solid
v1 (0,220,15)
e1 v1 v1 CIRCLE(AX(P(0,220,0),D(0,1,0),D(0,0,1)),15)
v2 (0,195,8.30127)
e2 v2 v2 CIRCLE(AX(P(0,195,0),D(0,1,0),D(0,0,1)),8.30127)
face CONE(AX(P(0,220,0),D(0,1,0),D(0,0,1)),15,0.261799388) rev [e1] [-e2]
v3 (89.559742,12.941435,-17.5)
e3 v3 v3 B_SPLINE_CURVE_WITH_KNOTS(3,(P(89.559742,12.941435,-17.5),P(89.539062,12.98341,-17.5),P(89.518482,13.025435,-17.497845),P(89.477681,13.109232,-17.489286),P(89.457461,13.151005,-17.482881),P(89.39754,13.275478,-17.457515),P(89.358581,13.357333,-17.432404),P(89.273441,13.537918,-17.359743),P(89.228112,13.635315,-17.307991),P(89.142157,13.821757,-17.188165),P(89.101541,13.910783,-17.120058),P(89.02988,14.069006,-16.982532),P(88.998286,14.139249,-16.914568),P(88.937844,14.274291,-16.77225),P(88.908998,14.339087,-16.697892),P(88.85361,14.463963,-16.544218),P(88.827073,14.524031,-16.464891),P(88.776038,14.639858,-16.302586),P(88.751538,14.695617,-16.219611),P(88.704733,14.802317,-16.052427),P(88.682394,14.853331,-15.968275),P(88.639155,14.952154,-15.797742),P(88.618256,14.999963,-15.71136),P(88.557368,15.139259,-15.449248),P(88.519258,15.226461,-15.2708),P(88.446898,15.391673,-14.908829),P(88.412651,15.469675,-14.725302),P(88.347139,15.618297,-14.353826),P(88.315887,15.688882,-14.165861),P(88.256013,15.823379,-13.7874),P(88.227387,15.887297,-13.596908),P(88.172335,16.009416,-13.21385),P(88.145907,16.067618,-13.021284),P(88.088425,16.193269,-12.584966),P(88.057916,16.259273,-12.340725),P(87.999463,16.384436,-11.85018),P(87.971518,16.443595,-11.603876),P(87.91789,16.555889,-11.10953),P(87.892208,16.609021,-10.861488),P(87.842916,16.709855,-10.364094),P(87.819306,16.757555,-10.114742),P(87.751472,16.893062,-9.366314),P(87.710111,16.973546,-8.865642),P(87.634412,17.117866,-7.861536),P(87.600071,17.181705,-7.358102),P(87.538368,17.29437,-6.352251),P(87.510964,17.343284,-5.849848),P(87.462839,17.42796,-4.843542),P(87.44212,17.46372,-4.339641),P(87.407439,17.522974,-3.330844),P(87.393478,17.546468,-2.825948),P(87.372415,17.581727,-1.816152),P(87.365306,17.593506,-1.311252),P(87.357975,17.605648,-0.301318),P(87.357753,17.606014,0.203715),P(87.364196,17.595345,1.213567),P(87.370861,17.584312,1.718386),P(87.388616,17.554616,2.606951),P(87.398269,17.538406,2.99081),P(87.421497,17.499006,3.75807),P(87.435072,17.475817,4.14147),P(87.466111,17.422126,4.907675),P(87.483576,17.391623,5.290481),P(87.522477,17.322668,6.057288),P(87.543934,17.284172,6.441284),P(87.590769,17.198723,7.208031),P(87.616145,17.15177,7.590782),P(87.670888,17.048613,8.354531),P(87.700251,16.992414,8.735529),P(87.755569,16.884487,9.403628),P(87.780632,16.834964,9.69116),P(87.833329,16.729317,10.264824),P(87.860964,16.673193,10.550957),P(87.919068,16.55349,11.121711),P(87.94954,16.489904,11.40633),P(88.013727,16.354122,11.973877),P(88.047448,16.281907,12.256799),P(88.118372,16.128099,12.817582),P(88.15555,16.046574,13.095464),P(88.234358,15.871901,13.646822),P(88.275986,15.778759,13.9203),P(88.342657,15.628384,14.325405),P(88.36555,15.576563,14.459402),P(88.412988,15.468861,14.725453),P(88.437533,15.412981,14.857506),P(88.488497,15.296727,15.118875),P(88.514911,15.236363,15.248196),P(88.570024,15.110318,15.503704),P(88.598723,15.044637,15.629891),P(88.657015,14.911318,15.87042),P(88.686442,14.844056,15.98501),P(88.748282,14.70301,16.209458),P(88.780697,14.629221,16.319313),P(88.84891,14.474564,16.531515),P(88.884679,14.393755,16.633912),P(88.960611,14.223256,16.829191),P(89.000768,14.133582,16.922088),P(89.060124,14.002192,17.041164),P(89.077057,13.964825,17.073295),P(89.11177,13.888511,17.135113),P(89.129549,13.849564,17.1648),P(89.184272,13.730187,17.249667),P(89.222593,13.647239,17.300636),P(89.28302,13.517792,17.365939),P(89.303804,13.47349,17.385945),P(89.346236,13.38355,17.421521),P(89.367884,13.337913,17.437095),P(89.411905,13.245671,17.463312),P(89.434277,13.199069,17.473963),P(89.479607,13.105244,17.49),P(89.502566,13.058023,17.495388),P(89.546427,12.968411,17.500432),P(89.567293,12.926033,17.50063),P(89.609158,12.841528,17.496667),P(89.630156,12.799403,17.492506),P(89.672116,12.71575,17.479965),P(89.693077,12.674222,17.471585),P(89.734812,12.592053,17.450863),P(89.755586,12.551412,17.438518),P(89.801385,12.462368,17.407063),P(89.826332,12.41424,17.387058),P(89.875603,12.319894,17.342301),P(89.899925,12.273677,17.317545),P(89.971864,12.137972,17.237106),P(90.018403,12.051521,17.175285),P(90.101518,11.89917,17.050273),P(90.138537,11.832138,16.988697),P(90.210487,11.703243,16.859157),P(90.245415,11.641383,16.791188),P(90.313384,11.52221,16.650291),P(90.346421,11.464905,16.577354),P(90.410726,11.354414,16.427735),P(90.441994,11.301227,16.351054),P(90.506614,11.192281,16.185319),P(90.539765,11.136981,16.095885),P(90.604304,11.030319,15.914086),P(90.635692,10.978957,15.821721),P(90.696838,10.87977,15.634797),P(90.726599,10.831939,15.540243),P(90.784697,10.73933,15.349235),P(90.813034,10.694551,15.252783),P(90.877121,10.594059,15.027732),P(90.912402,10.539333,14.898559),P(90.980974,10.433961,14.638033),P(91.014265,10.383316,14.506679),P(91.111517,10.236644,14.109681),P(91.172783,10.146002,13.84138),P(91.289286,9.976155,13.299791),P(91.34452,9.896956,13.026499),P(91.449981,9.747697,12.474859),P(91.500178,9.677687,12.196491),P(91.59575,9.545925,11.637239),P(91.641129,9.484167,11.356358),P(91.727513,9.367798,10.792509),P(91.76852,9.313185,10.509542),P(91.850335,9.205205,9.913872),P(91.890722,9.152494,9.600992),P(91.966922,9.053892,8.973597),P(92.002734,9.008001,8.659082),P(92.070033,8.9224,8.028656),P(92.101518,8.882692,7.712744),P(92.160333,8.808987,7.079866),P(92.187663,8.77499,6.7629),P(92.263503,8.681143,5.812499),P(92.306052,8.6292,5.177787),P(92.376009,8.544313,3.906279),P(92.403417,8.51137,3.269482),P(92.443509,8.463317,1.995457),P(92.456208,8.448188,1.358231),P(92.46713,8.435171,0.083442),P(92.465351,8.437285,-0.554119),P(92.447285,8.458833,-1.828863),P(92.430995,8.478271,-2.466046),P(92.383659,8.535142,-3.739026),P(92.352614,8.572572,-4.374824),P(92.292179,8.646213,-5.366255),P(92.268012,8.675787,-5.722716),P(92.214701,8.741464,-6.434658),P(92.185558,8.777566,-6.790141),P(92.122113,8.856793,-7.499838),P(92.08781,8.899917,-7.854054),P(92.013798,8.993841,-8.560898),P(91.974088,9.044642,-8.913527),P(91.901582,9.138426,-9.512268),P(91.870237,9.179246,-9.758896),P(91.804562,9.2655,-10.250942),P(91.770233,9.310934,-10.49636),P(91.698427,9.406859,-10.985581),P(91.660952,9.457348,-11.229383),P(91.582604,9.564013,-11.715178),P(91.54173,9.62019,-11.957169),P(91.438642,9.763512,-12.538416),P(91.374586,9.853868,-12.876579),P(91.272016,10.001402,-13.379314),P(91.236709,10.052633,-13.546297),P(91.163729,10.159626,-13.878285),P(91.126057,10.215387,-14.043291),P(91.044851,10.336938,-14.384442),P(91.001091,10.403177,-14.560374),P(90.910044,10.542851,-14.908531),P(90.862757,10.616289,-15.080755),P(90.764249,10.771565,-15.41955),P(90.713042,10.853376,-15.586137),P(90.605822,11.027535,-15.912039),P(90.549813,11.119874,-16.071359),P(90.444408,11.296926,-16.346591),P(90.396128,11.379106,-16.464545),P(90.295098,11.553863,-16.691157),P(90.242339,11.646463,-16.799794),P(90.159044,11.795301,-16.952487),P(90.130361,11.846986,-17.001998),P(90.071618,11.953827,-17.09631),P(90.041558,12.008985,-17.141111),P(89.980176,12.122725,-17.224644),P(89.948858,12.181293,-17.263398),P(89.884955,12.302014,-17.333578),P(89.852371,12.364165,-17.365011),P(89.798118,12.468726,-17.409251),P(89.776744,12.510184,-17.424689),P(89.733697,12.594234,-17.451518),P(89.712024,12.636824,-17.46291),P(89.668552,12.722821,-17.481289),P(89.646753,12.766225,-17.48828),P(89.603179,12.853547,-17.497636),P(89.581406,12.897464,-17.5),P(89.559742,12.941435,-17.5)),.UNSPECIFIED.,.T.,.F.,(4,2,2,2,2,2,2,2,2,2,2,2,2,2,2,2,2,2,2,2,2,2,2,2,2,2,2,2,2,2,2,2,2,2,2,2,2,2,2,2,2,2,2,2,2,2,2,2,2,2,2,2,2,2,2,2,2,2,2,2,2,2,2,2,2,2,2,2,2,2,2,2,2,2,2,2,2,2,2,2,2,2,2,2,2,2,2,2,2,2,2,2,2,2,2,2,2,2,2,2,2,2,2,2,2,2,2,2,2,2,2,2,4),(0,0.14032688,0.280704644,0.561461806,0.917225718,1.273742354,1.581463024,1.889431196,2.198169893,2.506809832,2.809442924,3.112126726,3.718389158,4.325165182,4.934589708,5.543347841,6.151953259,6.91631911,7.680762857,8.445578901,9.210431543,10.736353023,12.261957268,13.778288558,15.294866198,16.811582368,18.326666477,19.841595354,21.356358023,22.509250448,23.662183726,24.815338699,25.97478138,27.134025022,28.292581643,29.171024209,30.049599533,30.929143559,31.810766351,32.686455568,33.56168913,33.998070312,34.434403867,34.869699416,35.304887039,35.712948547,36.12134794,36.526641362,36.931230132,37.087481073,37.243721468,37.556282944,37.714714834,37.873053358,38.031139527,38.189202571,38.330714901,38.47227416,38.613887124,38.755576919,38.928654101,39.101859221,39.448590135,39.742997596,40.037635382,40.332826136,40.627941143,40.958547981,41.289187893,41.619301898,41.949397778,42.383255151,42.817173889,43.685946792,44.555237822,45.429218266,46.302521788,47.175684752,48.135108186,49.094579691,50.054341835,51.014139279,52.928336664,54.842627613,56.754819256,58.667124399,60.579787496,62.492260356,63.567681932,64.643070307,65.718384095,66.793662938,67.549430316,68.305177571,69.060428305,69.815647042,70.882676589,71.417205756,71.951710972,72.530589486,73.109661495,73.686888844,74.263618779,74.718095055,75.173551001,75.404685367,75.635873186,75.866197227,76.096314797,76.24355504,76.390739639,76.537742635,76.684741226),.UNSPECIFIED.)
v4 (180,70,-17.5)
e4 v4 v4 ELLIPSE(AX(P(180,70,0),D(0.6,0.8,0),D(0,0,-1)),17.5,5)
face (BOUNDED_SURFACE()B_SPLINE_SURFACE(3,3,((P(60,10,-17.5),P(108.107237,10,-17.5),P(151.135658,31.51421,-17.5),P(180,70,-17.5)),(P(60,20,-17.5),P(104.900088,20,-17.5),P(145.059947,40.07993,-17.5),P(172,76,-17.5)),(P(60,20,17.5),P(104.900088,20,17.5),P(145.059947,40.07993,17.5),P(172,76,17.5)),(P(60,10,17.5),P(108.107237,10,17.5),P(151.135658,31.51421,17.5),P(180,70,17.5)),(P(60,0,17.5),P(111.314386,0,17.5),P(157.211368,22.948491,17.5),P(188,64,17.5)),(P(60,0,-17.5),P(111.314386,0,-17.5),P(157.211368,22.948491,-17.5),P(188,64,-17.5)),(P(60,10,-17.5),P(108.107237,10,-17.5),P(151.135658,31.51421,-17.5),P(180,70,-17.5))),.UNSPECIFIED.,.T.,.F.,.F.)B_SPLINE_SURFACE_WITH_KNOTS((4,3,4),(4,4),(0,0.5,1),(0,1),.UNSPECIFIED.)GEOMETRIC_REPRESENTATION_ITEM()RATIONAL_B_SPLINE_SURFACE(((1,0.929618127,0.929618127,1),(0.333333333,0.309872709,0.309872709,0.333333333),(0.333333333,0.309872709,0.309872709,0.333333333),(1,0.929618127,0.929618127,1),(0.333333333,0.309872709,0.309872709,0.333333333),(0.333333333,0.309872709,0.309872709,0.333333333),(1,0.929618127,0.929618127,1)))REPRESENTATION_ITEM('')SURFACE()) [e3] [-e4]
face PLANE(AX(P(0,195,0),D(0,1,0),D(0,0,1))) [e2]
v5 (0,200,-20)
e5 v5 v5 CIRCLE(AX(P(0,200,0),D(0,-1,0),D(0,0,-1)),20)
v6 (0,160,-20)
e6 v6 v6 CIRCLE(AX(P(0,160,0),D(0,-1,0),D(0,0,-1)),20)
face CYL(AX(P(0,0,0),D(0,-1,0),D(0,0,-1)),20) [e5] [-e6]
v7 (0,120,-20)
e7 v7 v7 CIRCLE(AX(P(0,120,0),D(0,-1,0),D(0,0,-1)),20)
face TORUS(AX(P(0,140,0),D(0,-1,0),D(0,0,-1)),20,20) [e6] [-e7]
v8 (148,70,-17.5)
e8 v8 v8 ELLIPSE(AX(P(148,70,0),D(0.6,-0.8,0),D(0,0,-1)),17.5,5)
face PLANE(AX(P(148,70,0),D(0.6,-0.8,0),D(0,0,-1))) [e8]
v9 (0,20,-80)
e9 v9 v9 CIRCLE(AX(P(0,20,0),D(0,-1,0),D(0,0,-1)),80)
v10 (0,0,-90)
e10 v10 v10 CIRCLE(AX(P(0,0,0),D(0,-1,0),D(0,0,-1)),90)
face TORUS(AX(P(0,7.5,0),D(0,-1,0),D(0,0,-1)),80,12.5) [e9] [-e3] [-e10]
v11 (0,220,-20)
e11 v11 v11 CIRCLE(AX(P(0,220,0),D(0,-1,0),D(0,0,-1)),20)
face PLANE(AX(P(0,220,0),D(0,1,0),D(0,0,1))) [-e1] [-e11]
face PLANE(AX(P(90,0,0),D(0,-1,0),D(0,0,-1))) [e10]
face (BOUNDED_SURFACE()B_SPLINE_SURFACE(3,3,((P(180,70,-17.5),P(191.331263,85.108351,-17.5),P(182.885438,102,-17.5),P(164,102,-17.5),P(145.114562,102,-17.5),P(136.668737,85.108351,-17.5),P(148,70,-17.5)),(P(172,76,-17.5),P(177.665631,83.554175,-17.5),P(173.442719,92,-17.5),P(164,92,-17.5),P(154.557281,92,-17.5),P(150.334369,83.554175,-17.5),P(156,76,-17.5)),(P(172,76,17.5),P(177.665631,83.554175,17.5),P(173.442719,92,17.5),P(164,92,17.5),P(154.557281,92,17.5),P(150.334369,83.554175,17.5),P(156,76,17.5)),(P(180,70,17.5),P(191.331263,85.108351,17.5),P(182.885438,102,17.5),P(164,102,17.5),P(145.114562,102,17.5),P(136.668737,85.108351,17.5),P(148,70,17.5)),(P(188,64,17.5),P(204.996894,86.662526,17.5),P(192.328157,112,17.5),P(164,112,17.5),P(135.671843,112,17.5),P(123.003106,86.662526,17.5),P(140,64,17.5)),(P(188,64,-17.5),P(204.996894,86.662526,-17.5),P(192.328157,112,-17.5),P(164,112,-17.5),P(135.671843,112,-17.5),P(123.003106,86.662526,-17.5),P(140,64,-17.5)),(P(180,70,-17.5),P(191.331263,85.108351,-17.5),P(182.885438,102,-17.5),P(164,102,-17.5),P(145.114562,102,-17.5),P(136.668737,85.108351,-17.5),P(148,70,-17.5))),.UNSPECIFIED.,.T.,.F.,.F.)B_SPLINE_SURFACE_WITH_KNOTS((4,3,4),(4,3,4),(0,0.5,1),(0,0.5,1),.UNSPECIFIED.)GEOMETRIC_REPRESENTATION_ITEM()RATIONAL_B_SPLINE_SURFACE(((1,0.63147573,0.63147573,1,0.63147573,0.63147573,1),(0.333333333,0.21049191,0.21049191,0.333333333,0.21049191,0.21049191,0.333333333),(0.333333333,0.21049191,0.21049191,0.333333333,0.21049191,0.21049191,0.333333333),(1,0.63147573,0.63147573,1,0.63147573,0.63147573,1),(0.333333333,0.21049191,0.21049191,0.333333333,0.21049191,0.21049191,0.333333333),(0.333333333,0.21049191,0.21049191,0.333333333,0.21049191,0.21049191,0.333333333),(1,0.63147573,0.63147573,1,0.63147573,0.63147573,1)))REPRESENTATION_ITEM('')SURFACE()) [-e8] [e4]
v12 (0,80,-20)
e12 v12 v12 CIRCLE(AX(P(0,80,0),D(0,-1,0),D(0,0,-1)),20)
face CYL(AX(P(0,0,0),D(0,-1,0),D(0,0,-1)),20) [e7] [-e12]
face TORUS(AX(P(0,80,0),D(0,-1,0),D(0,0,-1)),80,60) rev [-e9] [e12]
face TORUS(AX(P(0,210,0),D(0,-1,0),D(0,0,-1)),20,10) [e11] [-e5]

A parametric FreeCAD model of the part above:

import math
import FreeCAD as App
import Part
import Sketcher

V = App.Vector
Q = App.Units.Quantity

doc = App.newDocument("Part")
body = doc.addObject("PartDesign::Body", "Body")

# Sketch on XY plane
sketch1 = body.newObject("Sketcher::SketchObject", "Sketch")
sketch1.AttachmentSupport = (doc.getObject("XY_Plane"), [""])
sketch1.MapMode = "FlatFace"
sketch1.addGeometry(Part.LineSegment(V(0, 220, 0), V(0, 0, 0)), False)
sketch1.addGeometry(Part.LineSegment(V(0, 0, 0), V(90, 0, 0)), False)
sketch1.addGeometry(Part.ArcOfCircle(Part.Circle(V(80, 8, 0), V(0, 0, 1), 12), math.radians(-37), math.radians(90)), False)
sketch1.addGeometry(Part.ArcOfCircle(Part.Circle(V(80, 80, 0), V(0, 0, 1), 60), math.radians(-180), math.radians(-90)), False)
sketch1.addGeometry(Part.LineSegment(V(20, 80, 0), V(20, 120, 0)), False)
sketch1.addGeometry(Part.ArcOfCircle(Part.Circle(V(20, 140, 0), V(0, 0, 1), 20), math.radians(-90), math.radians(90)), False)
sketch1.addGeometry(Part.LineSegment(V(20, 160, 0), V(20, 200, 0)), False)
sketch1.addGeometry(Part.ArcOfCircle(Part.Circle(V(20, 210, 0), V(0, 0, 1), 10), math.radians(-90), math.radians(90)), False)
sketch1.addGeometry(Part.LineSegment(V(20, 220, 0), V(0, 220, 0)), False)
sketch1.addConstraint(Sketcher.Constraint("Coincident", 0, 2, 1, 1))
sketch1.addConstraint(Sketcher.Constraint("Coincident", 1, 2, 2, 1))
sketch1.addConstraint(Sketcher.Constraint("Tangent", 2, 2, 3, 2))
sketch1.addConstraint(Sketcher.Constraint("Tangent", 3, 1, 4, 1))
sketch1.addConstraint(Sketcher.Constraint("Coincident", 4, 2, 5, 1))
sketch1.addConstraint(Sketcher.Constraint("Coincident", 5, 2, 6, 1))
sketch1.addConstraint(Sketcher.Constraint("Coincident", 6, 2, 7, 1))
sketch1.addConstraint(Sketcher.Constraint("Tangent", 7, 2, 8, 1))
sketch1.addConstraint(Sketcher.Constraint("Coincident", 8, 2, 0, 1))
sketch1.addConstraint(Sketcher.Constraint("Vertical", 0))
sketch1.addConstraint(Sketcher.Constraint("Horizontal", 1))
sketch1.addConstraint(Sketcher.Constraint("Vertical", 4))
sketch1.addConstraint(Sketcher.Constraint("Vertical", 6))
sketch1.addConstraint(Sketcher.Constraint("Horizontal", 8))
sketch1.addConstraint(Sketcher.Constraint("Coincident", 0, 2, -1, 1))
sketch1.addConstraint(Sketcher.Constraint("Vertical", 2, 3, 3, 3))
sketch1.addConstraint(Sketcher.Constraint("Vertical", 5, 3, 7, 3))
sketch1.addConstraint(Sketcher.Constraint("Vertical", 7, 3, 3, 1))
sketch1.addConstraint(Sketcher.Constraint("Vertical", 4, 2, 5, 2))
sketch1.addConstraint(Sketcher.Constraint("Equal", 4, 6))
sketch1.addConstraint(Sketcher.Constraint("Radius", 3, Q("60 mm")))
sketch1.addConstraint(Sketcher.Constraint("Radius", 5, Q("20 mm")))
sketch1.addConstraint(Sketcher.Constraint("Radius", 7, Q("10 mm")))
sketch1.addConstraint(Sketcher.Constraint("Radius", 2, Q("12.5 mm")))
sketch1.addConstraint(Sketcher.Constraint("DistanceX", 1, 1, 1, 2, Q("90 mm")))
sketch1.addConstraint(Sketcher.Constraint("DistanceX", 8, 2, 8, 1, Q("20 mm")))
sketch1.addConstraint(Sketcher.Constraint("DistanceY", 0, 2, 0, 1, Q("220 mm")))
revolution = body.newObject("PartDesign::Revolution", "Revolution")
revolution.Profile = sketch1
revolution.ReferenceAxis = (sketch1, ["V_Axis"])
revolution.Angle = 360

# Sketch on YZ plane
sketch2 = body.newObject("Sketcher::SketchObject", "Sketch001")
sketch2.AttachmentSupport = (doc.getObject("YZ_Plane"), [""])
sketch2.MapMode = "FlatFace"
sketch2.addGeometry(Part.Ellipse(V(10, -17.5, 0), V(15, 0, 0), V(10, 0, 0)), False)
sketch2.addConstraint(Sketcher.Constraint("Block", 0))

# Sketch on XY plane
sketch3 = body.newObject("Sketcher::SketchObject", "Sketch002")
sketch3.AttachmentSupport = (doc.getObject("XY_Plane"), [""])
sketch3.MapMode = "FlatFace"
sketch3.addGeometry(Part.LineSegment(V(0, 10, 0), V(60, 10, 0)), False)
sketch3.addGeometry(Part.ArcOfCircle(Part.Circle(V(60, 160, 0), V(0, 0, 1), 150), math.radians(-90), math.radians(-37)), False)
sketch3.addGeometry(Part.ArcOfCircle(Part.Circle(V(164, 82, 0), V(0, 0, 1), 20), math.radians(-37), math.radians(217)), False)
sketch3.addConstraint(Sketcher.Constraint("Tangent", 0, 2, 1, 1))
sketch3.addConstraint(Sketcher.Constraint("Tangent", 1, 2, 2, 1))
sketch3.addConstraint(Sketcher.Constraint("Horizontal", 0))
sketch3.addConstraint(Sketcher.Constraint("PointOnObject", 0, 1, -2))
sketch3.addConstraint(Sketcher.Constraint("Horizontal", 1, 2, 2, 2))
sketch3.addConstraint(Sketcher.Constraint("Radius", 1, Q("150 mm")))
sketch3.addConstraint(Sketcher.Constraint("Radius", 2, Q("20 mm")))
sketch3.addConstraint(Sketcher.Constraint("DistanceX", 0, 1, 0, 2, Q("60 mm")))
sketch3.addConstraint(Sketcher.Constraint("DistanceY", -1, 1, 1, 3, Q("160 mm")))
sketch3.addConstraint(Sketcher.Constraint("DistanceX", -1, 1, 2, 3, Q("164 mm")))
doc.recompute()

additivepipe = body.newObject("PartDesign::AdditivePipe", "AdditivePipe")
additivepipe.Profile = sketch2
additivepipe.Spine = (sketch3, ["Edge1", "Edge2", "Edge3"])

# Sketch on XZ plane
sketch4 = body.newObject("Sketcher::SketchObject", "Sketch003")
sketch4.AttachmentSupport = (doc.getObject("XZ_Plane"), [""])
sketch4.MapMode = "FlatFace"
sketch4.AttachmentOffset = App.Placement(V(0, 0, -220), App.Rotation())
sketch4.addGeometry(Part.Circle(V(0, 0, 0), V(0, 0, 1), 15), False)
sketch4.addConstraint(Sketcher.Constraint("Coincident", 0, 3, -1, 1))
sketch4.addConstraint(Sketcher.Constraint("Diameter", 0, Q("30 mm")))
pocket1 = body.newObject("PartDesign::Pocket", "Pocket")
pocket1.Profile = sketch4
pocket1.Length = 25
pocket1.Reversed = True
pocket1.TaperAngle = -15

doc.recompute()
